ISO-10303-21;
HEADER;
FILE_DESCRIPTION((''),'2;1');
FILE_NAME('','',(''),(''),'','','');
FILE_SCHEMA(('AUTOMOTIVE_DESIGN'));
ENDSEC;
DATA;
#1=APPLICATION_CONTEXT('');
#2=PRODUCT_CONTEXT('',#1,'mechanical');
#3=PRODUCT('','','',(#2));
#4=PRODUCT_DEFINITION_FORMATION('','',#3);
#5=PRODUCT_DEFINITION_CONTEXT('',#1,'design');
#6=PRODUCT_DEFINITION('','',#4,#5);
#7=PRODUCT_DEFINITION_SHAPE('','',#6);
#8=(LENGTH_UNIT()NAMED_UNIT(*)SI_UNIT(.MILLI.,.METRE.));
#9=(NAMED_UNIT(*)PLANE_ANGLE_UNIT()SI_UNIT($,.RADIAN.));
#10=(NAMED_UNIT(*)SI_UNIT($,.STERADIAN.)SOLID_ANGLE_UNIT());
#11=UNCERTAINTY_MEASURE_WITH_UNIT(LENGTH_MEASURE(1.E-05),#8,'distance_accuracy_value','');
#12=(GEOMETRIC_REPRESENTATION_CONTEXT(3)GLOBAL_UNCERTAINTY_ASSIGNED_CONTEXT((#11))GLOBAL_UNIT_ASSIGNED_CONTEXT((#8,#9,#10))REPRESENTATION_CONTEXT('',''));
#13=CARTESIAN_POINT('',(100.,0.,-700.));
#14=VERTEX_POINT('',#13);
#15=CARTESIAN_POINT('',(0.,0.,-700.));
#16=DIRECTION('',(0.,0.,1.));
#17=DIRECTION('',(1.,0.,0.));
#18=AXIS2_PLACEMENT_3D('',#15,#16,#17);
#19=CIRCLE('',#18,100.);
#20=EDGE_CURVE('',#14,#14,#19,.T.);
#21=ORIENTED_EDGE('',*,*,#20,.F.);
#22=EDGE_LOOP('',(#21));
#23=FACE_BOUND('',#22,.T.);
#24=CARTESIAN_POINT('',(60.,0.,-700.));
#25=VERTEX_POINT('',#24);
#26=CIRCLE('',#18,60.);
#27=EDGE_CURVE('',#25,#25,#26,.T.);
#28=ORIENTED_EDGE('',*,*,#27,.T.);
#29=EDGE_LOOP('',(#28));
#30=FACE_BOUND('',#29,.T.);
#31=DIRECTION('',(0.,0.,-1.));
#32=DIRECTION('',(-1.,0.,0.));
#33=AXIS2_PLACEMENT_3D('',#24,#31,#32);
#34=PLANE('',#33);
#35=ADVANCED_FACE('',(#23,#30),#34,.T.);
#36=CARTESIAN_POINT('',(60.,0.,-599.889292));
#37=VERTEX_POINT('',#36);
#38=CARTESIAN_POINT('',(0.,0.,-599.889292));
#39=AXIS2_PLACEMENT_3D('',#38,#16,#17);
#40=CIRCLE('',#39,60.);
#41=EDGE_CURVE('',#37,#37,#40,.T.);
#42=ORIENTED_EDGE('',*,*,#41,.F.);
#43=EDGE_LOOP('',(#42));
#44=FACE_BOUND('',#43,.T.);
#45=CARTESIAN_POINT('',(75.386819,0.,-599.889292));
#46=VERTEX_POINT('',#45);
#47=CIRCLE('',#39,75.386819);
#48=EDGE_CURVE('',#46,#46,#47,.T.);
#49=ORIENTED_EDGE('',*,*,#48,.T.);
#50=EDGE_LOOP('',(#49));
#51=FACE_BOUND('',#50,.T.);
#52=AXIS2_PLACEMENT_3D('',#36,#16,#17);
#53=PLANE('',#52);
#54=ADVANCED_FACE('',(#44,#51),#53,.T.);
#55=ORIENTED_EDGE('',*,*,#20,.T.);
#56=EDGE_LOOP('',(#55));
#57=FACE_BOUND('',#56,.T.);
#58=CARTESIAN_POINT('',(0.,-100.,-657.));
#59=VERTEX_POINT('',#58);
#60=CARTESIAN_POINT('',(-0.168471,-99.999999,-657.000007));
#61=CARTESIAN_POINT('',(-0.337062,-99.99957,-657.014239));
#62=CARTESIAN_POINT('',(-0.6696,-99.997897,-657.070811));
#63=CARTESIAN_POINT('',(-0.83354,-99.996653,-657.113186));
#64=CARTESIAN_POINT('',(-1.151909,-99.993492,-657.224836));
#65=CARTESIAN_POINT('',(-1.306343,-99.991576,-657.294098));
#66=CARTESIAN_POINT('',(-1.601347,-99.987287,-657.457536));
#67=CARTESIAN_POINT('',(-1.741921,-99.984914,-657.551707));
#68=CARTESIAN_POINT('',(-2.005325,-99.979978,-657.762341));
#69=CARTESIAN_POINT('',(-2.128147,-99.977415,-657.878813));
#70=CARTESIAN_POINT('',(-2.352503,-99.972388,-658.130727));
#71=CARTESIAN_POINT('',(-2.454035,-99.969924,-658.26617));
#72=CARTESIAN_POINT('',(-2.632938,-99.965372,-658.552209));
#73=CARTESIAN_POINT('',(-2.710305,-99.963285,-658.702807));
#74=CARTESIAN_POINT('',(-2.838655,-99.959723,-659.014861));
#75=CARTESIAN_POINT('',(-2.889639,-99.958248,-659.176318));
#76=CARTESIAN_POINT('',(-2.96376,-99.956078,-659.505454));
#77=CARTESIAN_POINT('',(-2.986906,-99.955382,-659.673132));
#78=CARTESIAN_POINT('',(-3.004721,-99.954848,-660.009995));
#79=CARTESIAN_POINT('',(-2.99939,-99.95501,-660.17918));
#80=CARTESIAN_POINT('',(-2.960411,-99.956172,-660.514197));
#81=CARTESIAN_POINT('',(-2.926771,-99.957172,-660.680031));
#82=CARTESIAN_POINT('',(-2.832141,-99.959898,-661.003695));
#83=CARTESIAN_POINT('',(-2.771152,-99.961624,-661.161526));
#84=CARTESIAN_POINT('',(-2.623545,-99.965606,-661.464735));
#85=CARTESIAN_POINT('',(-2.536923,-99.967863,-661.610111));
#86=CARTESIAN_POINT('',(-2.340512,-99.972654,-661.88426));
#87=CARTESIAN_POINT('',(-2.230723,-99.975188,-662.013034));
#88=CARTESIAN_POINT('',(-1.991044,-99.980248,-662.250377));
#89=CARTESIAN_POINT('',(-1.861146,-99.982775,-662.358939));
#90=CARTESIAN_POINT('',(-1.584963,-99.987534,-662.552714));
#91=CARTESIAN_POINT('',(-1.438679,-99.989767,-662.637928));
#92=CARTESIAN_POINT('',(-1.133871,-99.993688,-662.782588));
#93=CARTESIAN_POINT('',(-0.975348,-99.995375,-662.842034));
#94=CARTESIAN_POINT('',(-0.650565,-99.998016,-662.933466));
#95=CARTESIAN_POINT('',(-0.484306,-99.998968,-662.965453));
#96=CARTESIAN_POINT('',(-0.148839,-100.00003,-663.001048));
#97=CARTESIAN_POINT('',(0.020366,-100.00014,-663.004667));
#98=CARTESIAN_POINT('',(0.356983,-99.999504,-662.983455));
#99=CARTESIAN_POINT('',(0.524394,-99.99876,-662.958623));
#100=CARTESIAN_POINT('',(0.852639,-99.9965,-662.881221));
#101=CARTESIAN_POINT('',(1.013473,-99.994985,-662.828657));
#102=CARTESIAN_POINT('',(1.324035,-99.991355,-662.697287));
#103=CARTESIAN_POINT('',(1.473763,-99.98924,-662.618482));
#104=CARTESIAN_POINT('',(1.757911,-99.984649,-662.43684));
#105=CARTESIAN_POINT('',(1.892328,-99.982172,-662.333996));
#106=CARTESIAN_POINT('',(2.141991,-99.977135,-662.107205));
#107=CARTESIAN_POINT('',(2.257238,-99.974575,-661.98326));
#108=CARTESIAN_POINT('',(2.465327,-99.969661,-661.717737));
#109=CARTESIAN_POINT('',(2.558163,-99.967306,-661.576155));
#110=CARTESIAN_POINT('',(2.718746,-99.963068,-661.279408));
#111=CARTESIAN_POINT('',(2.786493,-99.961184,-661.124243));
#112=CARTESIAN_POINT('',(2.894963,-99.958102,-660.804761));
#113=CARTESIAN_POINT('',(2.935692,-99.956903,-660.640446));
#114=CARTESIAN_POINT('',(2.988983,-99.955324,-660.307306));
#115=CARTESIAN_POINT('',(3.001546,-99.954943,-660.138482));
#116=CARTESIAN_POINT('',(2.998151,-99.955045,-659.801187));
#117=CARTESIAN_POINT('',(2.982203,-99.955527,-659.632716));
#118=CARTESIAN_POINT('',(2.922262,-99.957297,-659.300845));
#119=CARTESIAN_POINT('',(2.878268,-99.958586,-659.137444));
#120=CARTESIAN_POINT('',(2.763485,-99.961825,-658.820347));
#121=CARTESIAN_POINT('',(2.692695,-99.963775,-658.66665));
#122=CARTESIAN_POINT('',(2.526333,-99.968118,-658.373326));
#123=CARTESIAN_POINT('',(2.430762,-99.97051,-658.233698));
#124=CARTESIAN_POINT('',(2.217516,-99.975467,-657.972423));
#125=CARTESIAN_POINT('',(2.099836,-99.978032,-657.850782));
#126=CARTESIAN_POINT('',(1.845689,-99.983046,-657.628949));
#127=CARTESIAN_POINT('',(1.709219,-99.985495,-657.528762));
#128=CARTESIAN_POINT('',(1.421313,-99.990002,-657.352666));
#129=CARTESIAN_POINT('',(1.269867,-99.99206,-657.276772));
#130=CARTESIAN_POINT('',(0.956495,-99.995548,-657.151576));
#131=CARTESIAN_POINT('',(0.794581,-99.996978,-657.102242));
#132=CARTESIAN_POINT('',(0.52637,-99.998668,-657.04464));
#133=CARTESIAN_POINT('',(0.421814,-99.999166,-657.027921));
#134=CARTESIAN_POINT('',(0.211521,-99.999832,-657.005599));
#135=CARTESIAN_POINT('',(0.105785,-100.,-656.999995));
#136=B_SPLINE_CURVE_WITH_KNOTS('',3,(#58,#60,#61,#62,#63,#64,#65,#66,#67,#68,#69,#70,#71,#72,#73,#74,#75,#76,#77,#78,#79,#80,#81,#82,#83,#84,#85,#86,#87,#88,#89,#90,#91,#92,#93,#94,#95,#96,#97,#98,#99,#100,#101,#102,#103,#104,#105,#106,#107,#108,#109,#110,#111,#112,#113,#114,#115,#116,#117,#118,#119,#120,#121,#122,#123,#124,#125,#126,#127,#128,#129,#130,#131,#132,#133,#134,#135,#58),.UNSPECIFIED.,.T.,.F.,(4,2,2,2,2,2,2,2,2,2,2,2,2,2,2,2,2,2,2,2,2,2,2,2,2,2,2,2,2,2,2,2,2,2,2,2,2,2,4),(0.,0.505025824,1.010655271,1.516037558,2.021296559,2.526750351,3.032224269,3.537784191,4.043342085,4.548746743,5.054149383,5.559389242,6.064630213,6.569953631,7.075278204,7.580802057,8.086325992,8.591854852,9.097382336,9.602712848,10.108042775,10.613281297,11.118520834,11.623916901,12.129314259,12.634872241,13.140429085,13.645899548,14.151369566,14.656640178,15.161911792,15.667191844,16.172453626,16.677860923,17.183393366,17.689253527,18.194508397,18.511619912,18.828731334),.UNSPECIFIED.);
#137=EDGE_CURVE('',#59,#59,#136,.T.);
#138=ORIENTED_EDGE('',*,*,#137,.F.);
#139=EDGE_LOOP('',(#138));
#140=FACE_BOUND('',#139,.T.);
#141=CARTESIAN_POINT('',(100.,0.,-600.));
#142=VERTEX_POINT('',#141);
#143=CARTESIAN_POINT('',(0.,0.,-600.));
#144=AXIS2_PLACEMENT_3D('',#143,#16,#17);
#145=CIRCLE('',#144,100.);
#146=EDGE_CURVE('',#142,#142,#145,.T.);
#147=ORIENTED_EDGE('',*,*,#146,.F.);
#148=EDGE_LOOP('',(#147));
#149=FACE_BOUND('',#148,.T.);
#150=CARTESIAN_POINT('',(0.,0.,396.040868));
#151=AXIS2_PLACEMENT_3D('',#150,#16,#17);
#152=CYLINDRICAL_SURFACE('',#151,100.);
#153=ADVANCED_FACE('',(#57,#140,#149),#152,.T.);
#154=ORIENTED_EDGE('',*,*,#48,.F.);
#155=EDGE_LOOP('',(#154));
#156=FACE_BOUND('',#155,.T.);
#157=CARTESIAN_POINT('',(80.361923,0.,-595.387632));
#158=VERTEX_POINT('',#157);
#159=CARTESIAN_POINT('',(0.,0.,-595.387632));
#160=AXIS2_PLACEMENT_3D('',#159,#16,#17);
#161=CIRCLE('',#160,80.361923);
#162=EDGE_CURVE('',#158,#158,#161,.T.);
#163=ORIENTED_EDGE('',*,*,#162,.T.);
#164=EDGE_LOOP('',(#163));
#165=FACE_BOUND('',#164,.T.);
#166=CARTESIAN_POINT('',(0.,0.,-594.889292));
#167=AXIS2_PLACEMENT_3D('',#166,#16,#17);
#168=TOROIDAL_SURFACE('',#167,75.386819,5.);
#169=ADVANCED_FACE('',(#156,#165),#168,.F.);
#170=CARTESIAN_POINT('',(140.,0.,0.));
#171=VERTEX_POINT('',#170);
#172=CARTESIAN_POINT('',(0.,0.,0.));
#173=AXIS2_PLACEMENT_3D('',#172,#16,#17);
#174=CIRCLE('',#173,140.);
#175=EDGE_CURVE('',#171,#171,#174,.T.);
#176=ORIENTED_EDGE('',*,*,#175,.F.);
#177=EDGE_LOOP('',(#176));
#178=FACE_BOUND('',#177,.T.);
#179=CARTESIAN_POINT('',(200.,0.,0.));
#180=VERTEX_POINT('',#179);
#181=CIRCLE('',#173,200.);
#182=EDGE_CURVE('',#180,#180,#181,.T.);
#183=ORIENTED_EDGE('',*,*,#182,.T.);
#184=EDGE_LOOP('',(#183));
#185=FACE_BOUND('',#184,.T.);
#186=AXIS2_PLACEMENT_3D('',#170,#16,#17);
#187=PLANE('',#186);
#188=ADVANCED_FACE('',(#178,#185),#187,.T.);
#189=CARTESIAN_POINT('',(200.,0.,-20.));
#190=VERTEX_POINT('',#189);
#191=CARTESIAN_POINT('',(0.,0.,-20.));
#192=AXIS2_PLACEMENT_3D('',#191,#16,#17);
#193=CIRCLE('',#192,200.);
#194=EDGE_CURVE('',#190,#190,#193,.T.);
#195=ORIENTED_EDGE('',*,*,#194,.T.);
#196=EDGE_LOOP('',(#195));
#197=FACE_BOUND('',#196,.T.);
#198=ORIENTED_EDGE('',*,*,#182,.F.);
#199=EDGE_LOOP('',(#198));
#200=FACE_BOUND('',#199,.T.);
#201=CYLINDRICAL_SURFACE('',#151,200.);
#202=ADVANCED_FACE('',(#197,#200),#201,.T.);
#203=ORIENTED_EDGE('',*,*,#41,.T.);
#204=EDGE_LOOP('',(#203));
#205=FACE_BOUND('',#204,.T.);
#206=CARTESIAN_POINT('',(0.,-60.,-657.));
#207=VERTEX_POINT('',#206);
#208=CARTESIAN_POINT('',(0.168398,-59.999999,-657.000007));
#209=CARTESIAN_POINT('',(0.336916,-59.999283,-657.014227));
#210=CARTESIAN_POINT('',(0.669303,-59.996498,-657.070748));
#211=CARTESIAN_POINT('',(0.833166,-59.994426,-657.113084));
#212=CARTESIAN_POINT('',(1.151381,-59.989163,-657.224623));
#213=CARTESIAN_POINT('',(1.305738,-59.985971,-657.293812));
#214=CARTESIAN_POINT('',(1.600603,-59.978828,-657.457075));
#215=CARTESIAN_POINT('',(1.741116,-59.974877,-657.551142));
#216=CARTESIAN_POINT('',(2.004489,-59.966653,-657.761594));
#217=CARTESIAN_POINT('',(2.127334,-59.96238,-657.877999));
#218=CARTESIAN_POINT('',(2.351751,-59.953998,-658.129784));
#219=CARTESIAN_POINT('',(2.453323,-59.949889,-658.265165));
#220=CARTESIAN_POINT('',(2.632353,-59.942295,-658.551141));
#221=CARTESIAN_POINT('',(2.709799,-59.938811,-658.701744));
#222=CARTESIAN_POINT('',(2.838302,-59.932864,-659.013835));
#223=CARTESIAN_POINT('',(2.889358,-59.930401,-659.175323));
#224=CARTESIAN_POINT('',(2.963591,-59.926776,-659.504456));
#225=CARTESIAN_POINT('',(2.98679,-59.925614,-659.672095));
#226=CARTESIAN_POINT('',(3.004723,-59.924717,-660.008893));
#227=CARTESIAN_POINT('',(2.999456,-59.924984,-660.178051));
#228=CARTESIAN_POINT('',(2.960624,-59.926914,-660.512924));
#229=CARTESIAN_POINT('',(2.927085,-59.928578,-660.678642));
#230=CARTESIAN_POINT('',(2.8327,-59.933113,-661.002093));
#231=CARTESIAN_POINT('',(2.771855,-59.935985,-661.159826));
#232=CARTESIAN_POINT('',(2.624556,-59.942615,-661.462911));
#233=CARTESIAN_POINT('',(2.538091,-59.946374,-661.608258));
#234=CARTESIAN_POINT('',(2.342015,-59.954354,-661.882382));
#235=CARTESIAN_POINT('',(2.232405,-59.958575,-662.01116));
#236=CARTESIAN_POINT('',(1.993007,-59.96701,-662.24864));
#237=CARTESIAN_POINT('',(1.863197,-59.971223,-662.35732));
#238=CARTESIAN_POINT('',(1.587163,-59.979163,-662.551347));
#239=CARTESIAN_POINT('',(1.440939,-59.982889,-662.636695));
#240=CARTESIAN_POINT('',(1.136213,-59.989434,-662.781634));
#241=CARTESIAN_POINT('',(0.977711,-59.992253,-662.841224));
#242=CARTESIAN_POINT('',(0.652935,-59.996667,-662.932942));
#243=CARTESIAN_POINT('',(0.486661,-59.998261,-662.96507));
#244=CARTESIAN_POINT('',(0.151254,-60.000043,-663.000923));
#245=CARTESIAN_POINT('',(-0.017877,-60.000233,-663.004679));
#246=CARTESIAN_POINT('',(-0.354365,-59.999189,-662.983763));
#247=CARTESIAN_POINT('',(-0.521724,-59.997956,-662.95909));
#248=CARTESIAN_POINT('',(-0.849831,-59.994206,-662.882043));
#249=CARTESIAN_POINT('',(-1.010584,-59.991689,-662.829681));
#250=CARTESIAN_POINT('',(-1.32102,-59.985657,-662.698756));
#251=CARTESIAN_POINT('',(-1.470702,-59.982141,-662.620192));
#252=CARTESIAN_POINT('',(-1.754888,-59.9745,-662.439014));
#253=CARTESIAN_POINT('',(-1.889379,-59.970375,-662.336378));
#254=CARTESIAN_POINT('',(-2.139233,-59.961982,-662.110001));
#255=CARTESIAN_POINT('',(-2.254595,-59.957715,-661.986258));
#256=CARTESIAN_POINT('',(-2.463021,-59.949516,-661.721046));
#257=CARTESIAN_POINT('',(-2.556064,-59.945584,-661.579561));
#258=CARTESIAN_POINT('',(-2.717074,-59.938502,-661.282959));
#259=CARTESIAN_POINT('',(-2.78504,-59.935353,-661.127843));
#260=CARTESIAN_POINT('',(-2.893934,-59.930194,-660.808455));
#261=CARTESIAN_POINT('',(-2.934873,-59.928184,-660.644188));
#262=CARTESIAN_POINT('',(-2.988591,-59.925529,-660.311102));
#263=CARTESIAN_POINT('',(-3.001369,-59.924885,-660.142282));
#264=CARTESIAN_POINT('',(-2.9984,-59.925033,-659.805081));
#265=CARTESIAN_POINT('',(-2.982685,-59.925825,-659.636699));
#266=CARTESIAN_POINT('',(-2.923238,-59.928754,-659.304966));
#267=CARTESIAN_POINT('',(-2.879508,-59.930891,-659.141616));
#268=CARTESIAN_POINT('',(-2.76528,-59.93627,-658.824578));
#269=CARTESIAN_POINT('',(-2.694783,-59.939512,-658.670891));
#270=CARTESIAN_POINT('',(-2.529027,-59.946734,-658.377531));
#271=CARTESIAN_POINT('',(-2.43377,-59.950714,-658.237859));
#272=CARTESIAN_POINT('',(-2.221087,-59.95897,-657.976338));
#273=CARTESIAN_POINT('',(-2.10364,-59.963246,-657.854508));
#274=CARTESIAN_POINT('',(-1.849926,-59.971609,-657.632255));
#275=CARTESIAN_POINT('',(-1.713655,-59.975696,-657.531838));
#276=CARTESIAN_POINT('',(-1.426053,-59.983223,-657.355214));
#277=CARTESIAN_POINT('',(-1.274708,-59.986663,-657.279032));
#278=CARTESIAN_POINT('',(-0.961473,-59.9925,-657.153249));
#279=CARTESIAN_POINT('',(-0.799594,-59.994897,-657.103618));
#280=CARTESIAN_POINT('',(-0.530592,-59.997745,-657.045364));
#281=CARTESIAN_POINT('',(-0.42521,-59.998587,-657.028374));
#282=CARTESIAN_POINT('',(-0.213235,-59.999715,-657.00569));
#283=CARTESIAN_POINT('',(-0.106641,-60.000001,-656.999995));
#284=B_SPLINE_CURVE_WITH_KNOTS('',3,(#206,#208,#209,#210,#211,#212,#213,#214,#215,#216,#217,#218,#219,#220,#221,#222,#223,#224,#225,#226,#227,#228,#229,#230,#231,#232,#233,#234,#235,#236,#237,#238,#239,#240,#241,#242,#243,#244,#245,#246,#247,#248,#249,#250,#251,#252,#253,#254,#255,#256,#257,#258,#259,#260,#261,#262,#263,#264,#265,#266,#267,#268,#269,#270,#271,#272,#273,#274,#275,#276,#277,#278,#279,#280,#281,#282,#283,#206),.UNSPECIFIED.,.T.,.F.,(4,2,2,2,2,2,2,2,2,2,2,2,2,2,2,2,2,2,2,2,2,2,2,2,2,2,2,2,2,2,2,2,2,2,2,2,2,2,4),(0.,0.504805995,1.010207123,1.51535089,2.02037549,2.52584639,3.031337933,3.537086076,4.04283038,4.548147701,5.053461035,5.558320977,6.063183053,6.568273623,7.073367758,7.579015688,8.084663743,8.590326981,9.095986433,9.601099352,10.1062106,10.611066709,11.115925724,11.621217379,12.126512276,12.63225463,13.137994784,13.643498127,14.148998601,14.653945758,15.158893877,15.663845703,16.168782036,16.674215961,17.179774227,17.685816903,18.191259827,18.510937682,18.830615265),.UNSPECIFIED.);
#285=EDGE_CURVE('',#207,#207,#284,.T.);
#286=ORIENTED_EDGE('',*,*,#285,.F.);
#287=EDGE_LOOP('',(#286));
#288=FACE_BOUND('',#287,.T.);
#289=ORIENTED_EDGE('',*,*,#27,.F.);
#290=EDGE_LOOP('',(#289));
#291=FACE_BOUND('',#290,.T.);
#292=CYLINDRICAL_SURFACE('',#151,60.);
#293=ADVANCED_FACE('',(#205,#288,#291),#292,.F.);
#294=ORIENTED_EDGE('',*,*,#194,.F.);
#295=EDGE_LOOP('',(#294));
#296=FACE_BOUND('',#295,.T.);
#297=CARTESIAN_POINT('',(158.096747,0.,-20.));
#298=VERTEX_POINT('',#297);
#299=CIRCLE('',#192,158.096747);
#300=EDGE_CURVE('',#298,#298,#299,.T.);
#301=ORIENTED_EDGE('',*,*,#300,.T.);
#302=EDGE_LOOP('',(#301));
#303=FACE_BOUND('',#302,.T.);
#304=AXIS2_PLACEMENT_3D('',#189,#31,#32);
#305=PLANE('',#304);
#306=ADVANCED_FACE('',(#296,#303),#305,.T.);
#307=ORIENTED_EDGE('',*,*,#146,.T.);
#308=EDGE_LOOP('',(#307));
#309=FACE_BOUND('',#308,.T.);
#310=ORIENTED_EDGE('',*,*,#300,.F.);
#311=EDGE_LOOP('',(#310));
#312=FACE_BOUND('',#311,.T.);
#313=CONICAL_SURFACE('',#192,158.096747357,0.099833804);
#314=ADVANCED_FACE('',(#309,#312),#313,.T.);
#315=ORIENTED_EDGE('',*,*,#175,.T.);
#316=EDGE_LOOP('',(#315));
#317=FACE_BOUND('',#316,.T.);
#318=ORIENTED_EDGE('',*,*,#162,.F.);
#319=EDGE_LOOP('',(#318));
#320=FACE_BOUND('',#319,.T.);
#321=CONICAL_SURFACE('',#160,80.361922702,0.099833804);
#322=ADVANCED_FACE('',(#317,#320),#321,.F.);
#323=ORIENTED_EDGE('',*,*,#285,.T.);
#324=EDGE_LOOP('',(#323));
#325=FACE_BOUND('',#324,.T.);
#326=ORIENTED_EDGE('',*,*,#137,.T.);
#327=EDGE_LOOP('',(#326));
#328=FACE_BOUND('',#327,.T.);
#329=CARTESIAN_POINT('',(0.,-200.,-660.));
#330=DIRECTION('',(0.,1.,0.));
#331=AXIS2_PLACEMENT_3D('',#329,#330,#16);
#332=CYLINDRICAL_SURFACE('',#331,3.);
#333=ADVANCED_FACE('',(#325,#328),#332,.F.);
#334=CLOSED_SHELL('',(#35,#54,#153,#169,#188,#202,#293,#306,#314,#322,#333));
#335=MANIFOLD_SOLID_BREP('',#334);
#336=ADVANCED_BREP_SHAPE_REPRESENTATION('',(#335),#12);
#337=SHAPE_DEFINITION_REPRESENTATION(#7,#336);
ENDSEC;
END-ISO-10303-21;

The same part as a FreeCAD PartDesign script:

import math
import FreeCAD as App
import Part
import Sketcher
Q = App.Units.Quantity

doc = App.newDocument("Part")
body = doc.addObject("PartDesign::Body", "Body")

# Sketch on XZ plane
sketch1 = body.newObject("Sketcher::SketchObject", "Sketch")
sketch1.AttachmentSupport = (doc.getObject("XZ_Plane"), [""])
sketch1.MapMode = "FlatFace"
sketch1.addGeometry(Part.LineSegment(App.Vector(100, -700, 0), App.Vector(60, -700, 0)), False)
sketch1.addGeometry(Part.LineSegment(App.Vector(60, -700, 0), App.Vector(60, -600, 0)), False)
sketch1.addGeometry(Part.LineSegment(App.Vector(60, -600, 0), App.Vector(75, -600, 0)), False)
sketch1.addGeometry(Part.ArcOfCircle(Part.Circle(App.Vector(75, -595, 0), App.Vector(0, 0, 1), 5), math.radians(-90), math.radians(-6)), False)
sketch1.addGeometry(Part.LineSegment(App.Vector(80, -595, 0), App.Vector(140, 0, 0)), False)
sketch1.addGeometry(Part.LineSegment(App.Vector(140, 0, 0), App.Vector(200, 0, 0)), False)
sketch1.addGeometry(Part.LineSegment(App.Vector(200, 0, 0), App.Vector(200, -20, 0)), False)
sketch1.addGeometry(Part.LineSegment(App.Vector(200, -20, 0), App.Vector(158, -20, 0)), False)
sketch1.addGeometry(Part.LineSegment(App.Vector(158, -20, 0), App.Vector(100, -600, 0)), False)
sketch1.addGeometry(Part.LineSegment(App.Vector(100, -600, 0), App.Vector(100, -700, 0)), False)
sketch1.addConstraint(Sketcher.Constraint("Coincident", 0, 2, 1, 1))
sketch1.addConstraint(Sketcher.Constraint("Coincident", 1, 2, 2, 1))
sketch1.addConstraint(Sketcher.Constraint("Tangent", 2, 2, 3, 1))
sketch1.addConstraint(Sketcher.Constraint("Tangent", 3, 2, 4, 1))
sketch1.addConstraint(Sketcher.Constraint("Coincident", 4, 2, 5, 1))
sketch1.addConstraint(Sketcher.Constraint("Coincident", 5, 2, 6, 1))
sketch1.addConstraint(Sketcher.Constraint("Coincident", 6, 2, 7, 1))
sketch1.addConstraint(Sketcher.Constraint("Coincident", 7, 2, 8, 1))
sketch1.addConstraint(Sketcher.Constraint("Coincident", 8, 2, 9, 1))
sketch1.addConstraint(Sketcher.Constraint("Coincident", 9, 2, 0, 1))
sketch1.addConstraint(Sketcher.Constraint("Horizontal", 0))
sketch1.addConstraint(Sketcher.Constraint("Vertical", 1))
sketch1.addConstraint(Sketcher.Constraint("Horizontal", 2))
sketch1.addConstraint(Sketcher.Constraint("Horizontal", 5))
sketch1.addConstraint(Sketcher.Constraint("Vertical", 6))
sketch1.addConstraint(Sketcher.Constraint("Horizontal", 7))
sketch1.addConstraint(Sketcher.Constraint("Vertical", 9))
sketch1.addConstraint(Sketcher.Constraint("PointOnObject", 4, 2, -1))
sketch1.addConstraint(Sketcher.Constraint("Parallel", 4, 8))
sketch1.addConstraint(Sketcher.Constraint("Radius", 3, Q("5 mm")))
sketch1.addConstraint(Sketcher.Constraint("DistanceX", 0, 2, 0, 1, Q("40 mm")))
sketch1.addConstraint(Sketcher.Constraint("DistanceX", 5, 1, 5, 2, Q("60 mm")))
sketch1.addConstraint(Sketcher.Constraint("DistanceY", 6, 2, 6, 1, Q("20 mm")))
sketch1.addConstraint(Sketcher.Constraint("DistanceY", 9, 2, 9, 1, Q("100 mm")))
sketch1.addConstraint(Sketcher.Constraint("DistanceX", -1, 1, 0, 2, Q("60 mm")))
sketch1.addConstraint(Sketcher.Constraint("DistanceY", 0, 2, -1, 1, Q("700 mm")))
sketch1.addConstraint(Sketcher.Constraint("DistanceX", -1, 1, 4, 2, Q("140 mm")))
sketch1.addConstraint(Sketcher.Constraint("DistanceX", 2, 1, 2, 2, Q("15.386819 mm")))
sketch1.addConstraint(Sketcher.Constraint("DistanceY", 1, 1, 1, 2, Q("100.110708 mm")))
revolution = body.newObject("PartDesign::Revolution", "Revolution")
revolution.Profile = sketch1
revolution.ReferenceAxis = (sketch1, ["V_Axis"])
revolution.Angle = 360

# Sketch on XZ plane
sketch2 = body.newObject("Sketcher::SketchObject", "Sketch001")
sketch2.AttachmentSupport = (doc.getObject("XZ_Plane"), [""])
sketch2.MapMode = "FlatFace"
sketch2.addGeometry(Part.Circle(App.Vector(0, -660, 0), App.Vector(0, 0, 1), 3), False)
sketch2.addConstraint(Sketcher.Constraint("PointOnObject", 0, 3, -2))
sketch2.addConstraint(Sketcher.Constraint("Diameter", 0, Q("6 mm")))
sketch2.addConstraint(Sketcher.Constraint("DistanceY", 0, 3, -1, 1, Q("660 mm")))
pocket1 = body.newObject("PartDesign::Pocket", "Pocket")
pocket1.Profile = sketch2
pocket1.Type = "ThroughAll"
pocket1.Reversed = True

doc.recompute()
